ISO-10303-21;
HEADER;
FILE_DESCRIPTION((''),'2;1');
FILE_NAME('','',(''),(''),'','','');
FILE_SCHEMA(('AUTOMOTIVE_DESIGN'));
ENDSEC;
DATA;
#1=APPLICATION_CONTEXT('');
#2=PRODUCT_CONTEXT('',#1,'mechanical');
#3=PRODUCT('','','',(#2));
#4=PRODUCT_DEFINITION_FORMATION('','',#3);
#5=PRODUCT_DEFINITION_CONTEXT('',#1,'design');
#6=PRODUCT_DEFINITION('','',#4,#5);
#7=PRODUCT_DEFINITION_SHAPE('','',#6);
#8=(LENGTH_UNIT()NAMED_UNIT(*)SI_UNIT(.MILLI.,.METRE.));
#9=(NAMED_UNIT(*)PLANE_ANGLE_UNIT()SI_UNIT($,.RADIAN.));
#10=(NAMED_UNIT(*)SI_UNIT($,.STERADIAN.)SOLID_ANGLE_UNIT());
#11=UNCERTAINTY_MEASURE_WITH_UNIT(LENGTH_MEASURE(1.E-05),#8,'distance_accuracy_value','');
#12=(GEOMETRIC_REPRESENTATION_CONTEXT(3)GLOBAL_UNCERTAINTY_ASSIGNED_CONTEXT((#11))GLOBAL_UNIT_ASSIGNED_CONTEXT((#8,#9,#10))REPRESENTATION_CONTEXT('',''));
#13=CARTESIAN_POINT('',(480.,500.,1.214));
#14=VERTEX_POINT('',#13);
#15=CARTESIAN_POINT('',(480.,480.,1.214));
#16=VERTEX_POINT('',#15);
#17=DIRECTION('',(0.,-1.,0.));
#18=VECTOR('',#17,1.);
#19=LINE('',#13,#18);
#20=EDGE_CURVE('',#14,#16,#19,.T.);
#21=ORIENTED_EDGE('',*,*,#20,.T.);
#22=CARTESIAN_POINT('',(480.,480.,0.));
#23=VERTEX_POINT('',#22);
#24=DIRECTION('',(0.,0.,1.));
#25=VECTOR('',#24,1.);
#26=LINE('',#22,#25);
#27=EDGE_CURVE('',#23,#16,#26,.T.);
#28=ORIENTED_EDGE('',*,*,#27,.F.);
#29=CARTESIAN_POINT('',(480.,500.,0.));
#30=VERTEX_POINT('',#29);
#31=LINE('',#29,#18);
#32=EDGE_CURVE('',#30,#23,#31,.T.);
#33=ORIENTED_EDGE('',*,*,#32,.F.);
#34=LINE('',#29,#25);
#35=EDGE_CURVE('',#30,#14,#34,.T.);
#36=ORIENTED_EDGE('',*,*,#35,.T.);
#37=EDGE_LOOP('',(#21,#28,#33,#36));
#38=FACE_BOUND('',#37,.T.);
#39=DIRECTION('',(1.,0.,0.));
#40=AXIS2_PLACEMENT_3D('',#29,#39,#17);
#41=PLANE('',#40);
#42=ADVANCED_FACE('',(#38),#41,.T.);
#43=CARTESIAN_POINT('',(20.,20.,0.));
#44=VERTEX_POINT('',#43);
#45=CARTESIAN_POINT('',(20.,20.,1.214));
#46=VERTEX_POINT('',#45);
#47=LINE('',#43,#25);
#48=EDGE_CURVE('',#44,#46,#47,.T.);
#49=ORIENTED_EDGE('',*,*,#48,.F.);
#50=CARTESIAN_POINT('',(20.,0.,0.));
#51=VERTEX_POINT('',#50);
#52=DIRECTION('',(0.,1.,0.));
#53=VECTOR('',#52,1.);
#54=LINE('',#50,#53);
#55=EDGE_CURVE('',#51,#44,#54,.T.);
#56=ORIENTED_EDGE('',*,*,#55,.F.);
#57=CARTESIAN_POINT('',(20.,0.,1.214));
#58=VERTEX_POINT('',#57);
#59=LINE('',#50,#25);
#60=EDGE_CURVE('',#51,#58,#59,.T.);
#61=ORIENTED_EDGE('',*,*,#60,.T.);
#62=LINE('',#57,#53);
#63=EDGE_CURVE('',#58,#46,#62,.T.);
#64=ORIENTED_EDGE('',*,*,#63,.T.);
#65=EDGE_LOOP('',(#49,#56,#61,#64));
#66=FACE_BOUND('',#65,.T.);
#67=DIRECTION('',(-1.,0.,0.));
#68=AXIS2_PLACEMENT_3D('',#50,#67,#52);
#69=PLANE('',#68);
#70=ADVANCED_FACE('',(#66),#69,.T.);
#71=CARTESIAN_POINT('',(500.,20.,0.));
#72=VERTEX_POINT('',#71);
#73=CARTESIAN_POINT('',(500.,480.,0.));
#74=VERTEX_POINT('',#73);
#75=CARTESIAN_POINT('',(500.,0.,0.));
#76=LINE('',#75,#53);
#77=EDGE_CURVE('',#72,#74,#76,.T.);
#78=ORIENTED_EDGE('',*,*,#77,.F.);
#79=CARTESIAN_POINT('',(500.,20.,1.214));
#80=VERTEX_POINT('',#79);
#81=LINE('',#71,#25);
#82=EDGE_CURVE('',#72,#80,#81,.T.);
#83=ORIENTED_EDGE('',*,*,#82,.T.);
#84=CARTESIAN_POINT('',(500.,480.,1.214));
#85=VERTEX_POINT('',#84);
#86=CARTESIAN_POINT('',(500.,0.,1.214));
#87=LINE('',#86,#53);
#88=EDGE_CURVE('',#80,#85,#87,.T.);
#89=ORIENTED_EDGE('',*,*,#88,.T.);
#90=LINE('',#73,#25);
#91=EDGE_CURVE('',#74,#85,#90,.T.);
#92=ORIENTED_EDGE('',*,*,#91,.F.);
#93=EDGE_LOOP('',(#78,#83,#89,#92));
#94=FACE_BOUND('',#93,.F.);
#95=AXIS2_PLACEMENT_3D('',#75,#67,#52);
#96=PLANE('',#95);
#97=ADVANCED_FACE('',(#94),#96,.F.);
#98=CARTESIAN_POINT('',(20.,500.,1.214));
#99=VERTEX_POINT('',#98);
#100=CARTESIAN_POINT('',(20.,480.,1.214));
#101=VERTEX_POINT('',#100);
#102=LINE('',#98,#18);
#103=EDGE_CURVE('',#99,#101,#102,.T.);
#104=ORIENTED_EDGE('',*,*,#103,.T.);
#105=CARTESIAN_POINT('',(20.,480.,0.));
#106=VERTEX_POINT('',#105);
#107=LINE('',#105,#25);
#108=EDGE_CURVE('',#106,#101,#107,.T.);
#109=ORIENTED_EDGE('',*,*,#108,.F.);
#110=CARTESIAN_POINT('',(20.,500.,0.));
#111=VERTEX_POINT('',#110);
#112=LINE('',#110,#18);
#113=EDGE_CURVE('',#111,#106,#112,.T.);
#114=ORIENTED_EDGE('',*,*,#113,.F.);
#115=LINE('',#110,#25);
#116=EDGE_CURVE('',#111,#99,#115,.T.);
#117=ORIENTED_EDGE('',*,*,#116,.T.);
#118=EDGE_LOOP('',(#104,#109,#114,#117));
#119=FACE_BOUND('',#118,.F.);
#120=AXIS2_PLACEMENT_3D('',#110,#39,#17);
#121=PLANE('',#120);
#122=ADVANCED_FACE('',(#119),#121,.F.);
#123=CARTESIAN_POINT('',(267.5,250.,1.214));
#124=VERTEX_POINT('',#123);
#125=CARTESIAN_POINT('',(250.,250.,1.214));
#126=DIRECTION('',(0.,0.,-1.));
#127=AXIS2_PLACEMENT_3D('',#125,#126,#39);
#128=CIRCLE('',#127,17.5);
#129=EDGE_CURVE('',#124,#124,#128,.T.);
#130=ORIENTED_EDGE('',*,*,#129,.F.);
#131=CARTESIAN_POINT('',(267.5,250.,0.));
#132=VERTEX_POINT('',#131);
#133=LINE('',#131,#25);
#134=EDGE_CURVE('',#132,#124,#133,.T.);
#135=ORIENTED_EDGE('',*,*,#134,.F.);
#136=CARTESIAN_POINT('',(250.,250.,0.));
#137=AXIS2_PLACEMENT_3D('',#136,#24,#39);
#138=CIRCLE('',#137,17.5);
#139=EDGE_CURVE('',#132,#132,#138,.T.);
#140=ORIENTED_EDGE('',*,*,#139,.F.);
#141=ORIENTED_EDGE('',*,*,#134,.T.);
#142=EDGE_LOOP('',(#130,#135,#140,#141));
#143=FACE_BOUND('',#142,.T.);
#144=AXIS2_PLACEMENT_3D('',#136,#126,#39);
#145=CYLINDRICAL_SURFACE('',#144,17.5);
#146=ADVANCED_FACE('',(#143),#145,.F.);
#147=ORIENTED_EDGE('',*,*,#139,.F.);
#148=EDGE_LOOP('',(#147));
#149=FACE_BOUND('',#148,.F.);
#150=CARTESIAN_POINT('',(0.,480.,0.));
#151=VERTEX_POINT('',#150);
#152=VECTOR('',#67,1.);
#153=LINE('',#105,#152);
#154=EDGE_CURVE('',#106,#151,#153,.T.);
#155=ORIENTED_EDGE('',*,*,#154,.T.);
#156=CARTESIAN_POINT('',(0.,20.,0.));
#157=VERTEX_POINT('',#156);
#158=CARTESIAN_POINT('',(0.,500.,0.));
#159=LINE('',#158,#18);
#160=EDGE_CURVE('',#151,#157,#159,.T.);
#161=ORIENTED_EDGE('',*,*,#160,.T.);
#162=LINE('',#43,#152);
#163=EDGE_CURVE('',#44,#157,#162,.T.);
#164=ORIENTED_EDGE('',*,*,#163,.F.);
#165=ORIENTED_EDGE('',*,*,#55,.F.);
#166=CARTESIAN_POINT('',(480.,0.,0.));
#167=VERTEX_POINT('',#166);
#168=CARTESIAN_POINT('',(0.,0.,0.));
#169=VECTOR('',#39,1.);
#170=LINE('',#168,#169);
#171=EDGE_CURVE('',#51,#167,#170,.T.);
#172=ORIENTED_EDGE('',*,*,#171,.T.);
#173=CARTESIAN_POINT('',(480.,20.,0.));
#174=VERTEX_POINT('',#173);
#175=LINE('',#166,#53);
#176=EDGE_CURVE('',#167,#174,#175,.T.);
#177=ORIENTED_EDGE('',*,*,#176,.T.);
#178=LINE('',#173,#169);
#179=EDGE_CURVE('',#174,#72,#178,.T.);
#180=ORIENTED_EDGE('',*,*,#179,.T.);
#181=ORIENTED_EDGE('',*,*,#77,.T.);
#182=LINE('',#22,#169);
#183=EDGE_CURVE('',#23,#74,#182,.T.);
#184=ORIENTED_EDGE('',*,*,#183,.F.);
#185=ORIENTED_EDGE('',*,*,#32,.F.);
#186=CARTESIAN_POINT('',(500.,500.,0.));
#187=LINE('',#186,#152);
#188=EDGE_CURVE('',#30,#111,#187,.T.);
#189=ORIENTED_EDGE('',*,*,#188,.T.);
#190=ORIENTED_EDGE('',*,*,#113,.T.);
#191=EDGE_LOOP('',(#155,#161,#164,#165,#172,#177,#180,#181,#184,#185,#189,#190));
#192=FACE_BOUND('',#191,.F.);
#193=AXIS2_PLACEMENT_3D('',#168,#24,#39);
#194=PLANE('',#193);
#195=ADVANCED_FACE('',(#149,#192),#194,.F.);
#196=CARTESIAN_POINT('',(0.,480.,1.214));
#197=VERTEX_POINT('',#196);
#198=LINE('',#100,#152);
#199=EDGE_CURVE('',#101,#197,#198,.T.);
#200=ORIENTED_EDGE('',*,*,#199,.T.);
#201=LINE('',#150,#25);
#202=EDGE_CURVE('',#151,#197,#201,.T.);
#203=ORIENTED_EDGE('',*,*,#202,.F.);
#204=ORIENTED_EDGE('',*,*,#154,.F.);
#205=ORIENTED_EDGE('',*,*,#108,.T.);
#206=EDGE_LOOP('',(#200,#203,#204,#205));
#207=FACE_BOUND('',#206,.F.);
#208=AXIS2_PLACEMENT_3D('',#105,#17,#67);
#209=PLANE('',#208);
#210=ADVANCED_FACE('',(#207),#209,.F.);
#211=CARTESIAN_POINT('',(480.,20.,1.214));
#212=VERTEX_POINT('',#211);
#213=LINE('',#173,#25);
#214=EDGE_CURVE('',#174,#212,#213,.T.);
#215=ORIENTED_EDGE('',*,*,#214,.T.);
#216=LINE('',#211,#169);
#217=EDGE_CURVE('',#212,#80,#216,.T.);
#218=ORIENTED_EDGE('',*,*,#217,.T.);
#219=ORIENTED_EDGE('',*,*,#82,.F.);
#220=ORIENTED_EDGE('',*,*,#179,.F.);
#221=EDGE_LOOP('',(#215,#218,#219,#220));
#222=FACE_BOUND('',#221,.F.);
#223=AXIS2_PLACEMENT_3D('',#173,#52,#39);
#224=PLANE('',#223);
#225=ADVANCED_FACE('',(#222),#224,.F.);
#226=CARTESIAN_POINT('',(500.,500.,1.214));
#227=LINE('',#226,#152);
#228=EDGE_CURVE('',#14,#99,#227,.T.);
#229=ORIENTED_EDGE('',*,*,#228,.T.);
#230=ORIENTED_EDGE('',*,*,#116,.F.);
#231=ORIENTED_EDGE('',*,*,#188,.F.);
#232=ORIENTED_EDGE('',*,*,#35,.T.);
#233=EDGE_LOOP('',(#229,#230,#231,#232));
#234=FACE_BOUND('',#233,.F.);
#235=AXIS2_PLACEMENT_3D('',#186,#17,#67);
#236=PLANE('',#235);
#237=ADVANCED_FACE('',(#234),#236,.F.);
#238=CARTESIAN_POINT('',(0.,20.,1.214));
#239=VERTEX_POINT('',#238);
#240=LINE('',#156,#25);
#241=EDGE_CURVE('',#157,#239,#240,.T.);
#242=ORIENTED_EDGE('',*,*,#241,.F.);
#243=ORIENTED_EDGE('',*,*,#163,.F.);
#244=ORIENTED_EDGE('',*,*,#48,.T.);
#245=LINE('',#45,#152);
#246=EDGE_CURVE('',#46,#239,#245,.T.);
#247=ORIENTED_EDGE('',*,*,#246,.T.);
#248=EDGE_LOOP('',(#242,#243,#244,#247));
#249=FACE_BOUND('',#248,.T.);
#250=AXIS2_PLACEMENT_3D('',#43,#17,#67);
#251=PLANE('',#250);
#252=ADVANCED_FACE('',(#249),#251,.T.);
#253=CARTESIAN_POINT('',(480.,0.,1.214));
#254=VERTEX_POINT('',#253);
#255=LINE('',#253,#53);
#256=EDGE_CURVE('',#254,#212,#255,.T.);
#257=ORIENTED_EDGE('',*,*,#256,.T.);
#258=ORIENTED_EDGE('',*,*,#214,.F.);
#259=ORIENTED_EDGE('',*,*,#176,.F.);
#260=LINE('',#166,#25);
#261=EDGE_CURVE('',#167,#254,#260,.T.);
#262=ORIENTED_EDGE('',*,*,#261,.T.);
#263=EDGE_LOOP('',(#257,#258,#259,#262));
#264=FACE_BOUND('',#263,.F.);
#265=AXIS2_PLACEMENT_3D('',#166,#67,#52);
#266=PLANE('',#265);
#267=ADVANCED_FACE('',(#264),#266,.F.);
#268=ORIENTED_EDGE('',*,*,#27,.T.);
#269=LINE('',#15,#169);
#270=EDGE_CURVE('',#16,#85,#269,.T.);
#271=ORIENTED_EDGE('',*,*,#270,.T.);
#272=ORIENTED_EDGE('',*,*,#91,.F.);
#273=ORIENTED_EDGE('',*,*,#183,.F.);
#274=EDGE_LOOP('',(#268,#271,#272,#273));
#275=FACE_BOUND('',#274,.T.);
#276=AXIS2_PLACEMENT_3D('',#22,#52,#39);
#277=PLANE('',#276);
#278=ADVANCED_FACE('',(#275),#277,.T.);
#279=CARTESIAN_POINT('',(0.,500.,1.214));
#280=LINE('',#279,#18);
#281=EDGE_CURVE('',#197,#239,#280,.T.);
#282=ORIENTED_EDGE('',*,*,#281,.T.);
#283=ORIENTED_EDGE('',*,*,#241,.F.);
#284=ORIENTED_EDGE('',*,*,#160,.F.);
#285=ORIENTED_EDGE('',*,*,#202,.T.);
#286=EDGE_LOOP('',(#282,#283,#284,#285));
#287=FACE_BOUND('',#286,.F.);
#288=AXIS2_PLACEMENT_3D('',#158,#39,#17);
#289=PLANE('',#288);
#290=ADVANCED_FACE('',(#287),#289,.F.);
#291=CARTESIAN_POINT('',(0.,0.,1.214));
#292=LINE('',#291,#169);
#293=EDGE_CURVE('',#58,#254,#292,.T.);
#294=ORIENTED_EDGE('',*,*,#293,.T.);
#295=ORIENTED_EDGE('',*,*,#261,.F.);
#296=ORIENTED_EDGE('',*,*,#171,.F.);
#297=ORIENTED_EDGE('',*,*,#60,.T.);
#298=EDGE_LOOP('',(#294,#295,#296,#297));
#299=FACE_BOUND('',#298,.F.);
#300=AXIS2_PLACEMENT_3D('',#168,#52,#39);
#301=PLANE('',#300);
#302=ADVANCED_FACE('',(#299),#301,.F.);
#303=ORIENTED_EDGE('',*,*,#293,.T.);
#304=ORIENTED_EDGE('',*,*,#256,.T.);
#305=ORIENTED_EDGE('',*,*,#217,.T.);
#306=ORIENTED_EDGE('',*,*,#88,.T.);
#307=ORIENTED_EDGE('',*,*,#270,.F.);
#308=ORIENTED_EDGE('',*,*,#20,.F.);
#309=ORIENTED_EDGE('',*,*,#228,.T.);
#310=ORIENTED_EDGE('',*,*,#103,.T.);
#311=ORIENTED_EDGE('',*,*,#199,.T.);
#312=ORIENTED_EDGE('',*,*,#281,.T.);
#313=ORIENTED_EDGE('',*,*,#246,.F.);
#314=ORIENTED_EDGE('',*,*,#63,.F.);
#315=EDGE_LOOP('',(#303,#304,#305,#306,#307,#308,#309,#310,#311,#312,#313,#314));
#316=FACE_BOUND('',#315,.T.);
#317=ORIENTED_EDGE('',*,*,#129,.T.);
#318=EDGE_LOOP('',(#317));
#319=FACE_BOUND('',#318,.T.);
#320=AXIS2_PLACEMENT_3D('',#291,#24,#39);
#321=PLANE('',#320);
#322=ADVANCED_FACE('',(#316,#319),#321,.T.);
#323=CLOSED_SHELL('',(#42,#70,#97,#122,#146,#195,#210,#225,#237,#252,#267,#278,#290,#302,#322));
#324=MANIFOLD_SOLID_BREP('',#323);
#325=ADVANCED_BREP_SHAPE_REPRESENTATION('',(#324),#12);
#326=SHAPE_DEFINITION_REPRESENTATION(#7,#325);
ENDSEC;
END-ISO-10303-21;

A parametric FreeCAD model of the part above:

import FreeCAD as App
import Part
import Sketcher
from FreeCAD import Vector
Q = App.Units.Quantity


def add_polygon(sketch, points):
    """Adds a closed chain of lines whose ends are joined by coincident constraints."""
    first, n = sketch.GeometryCount, len(points)
    for a, b in zip(points, points[1:] + points[:1]):
        sketch.addGeometry(Part.LineSegment(App.Vector(*a, 0), App.Vector(*b, 0)), False)
    for i in range(n):
        sketch.addConstraint(Sketcher.Constraint("Coincident", first + i, 2, first + (i + 1) % n, 1))

doc = App.newDocument("Part")
params = doc.addObject("Spreadsheet::Sheet", "Params")
for row, (alias, value) in enumerate([
    ("sketch1_width", "500 mm"),
    ("pad1_length", "1.214 mm"),
    ("sketch2_width", "20 mm"),
    ("pocket1_length", "1.214 mm"),
    ("sketch3_width", "20 mm"),
    ("pocket2_length", "1.214 mm"),
    ("sketch4_diameter", "35 mm"),
], start=1):
    params.set(f"A{row}", alias)
    params.set(f"B{row}", "=" + value)
    params.setAlias(f"B{row}", alias)

body = doc.addObject("PartDesign::Body", "Body")

sketch1 = body.newObject("Sketcher::SketchObject", "Sketch")
sketch1.AttachmentSupport = (doc.getObject("XY_Plane"), [""])
sketch1.MapMode = "FlatFace"
add_polygon(sketch1, [(0, 500), (0, 0), (500, 0), (500, 500)])
sketch1.addConstraint([
    Sketcher.Constraint("Vertical", 0),
    Sketcher.Constraint("Horizontal", 1),
    Sketcher.Constraint("Vertical", 2),
    Sketcher.Constraint("Horizontal", 3),
    Sketcher.Constraint("Coincident", 0, 2, -1, 1),
    Sketcher.Constraint("Equal", 3, 0),
    Sketcher.Constraint("DistanceX", 1, 1, 1, 2, Q("500 mm")),
])
sketch1.setExpression("Constraints[10]", "Params.sketch1_width")
pad1 = body.newObject("PartDesign::Pad", "Pad")
pad1.Profile = sketch1
pad1.setExpression("Length", "Params.pad1_length")

sketch2 = body.newObject("Sketcher::SketchObject", "Sketch001")
sketch2.AttachmentSupport = (doc.getObject("XY_Plane"), [""])
sketch2.MapMode = "FlatFace"
add_polygon(sketch2, [(0, 20), (0, 0), (20, 0), (20, 20)])
sketch2.addConstraint([
    Sketcher.Constraint("Vertical", 0),
    Sketcher.Constraint("Horizontal", 1),
    Sketcher.Constraint("Vertical", 2),
    Sketcher.Constraint("Horizontal", 3),
    Sketcher.Constraint("Coincident", 0, 2, -1, 1),
    Sketcher.Constraint("Equal", 3, 0),
    Sketcher.Constraint("DistanceX", 1, 1, 1, 2, Q("20 mm")),
])
sketch2.setExpression("Constraints[10]", "Params.sketch2_width")
pocket1 = body.newObject("PartDesign::Pocket", "Pocket")
pocket1.Profile = sketch2
pocket1.setExpression("Length", "Params.pocket1_length")
pocket1.Reversed = True

sketch3 = body.newObject("Sketcher::SketchObject", "Sketch002")
sketch3.AttachmentSupport = (doc.getObject("XY_Plane"), [""])
sketch3.MapMode = "FlatFace"
add_polygon(sketch3, [(480, 0), (500, 0), (500, 20), (480, 20)])
add_polygon(sketch3, [(20, 480), (20, 500), (0, 500), (0, 480)])
add_polygon(sketch3, [(480, 480), (500, 480), (500, 500), (480, 500)])
sketch3.addConstraint([
    Sketcher.Constraint("Horizontal", 0),
    Sketcher.Constraint("Vertical", 1),
    Sketcher.Constraint("Horizontal", 2),
    Sketcher.Constraint("Vertical", 3),
    Sketcher.Constraint("Vertical", 4),
    Sketcher.Constraint("Horizontal", 5),
    Sketcher.Constraint("Vertical", 6),
    Sketcher.Constraint("Horizontal", 7),
    Sketcher.Constraint("Horizontal", 8),
    Sketcher.Constraint("Vertical", 9),
    Sketcher.Constraint("Horizontal", 10),
    Sketcher.Constraint("Vertical", 11),
    Sketcher.Constraint("PointOnObject", 0, 2, -1),
    Sketcher.Constraint("PointOnObject", 5, 2, -2),
    Sketcher.Constraint("Horizontal", 7, 2, 8, 2),
    Sketcher.Constraint("Horizontal", 5, 2, 9, 2),
    Sketcher.Constraint("Vertical", 1, 2, 8, 2),
    Sketcher.Constraint("Vertical", 3, 2, 10, 2),
    Sketcher.Constraint("Equal", 2, 5),
    Sketcher.Constraint("Equal", 10, 1),
    Sketcher.Constraint("Equal", 3, 4),
    Sketcher.Constraint("DistanceX", 0, 1, 0, 2, Q("20 mm")),
    Sketcher.Constraint("DistanceX", -1, 1, 0, 2, Q("500 mm")),
    Sketcher.Constraint("DistanceY", -1, 1, 4, 2, Q("500 mm")),
])
sketch3.setExpression("Constraints[33]", "Params.sketch3_width")
pocket2 = body.newObject("PartDesign::Pocket", "Pocket001")
pocket2.Profile = sketch3
pocket2.setExpression("Length", "Params.pocket2_length")
pocket2.Reversed = True

sketch4 = body.newObject("Sketcher::SketchObject", "Sketch003")
sketch4.AttachmentSupport = (doc.getObject("XY_Plane"), [""])
sketch4.MapMode = "FlatFace"
sketch4.addGeometry(Part.Circle(Vector(250, 250, 0), Vector(0, 0, 1), 18), False)
sketch4.addConstraint([
    Sketcher.Constraint("Diameter", 0, Q("35 mm")),
    Sketcher.Constraint("DistanceX", -1, 1, 0, 3, Q("250 mm")),
    Sketcher.Constraint("DistanceY", -1, 1, 0, 3, Q("250 mm")),
])
sketch4.setExpression("Constraints[0]", "Params.sketch4_diameter")
pocket3 = body.newObject("PartDesign::Pocket", "Pocket002")
pocket3.Profile = sketch4
pocket3.Type = "UpToFirst"
pocket3.Reversed = True

doc.recompute()
